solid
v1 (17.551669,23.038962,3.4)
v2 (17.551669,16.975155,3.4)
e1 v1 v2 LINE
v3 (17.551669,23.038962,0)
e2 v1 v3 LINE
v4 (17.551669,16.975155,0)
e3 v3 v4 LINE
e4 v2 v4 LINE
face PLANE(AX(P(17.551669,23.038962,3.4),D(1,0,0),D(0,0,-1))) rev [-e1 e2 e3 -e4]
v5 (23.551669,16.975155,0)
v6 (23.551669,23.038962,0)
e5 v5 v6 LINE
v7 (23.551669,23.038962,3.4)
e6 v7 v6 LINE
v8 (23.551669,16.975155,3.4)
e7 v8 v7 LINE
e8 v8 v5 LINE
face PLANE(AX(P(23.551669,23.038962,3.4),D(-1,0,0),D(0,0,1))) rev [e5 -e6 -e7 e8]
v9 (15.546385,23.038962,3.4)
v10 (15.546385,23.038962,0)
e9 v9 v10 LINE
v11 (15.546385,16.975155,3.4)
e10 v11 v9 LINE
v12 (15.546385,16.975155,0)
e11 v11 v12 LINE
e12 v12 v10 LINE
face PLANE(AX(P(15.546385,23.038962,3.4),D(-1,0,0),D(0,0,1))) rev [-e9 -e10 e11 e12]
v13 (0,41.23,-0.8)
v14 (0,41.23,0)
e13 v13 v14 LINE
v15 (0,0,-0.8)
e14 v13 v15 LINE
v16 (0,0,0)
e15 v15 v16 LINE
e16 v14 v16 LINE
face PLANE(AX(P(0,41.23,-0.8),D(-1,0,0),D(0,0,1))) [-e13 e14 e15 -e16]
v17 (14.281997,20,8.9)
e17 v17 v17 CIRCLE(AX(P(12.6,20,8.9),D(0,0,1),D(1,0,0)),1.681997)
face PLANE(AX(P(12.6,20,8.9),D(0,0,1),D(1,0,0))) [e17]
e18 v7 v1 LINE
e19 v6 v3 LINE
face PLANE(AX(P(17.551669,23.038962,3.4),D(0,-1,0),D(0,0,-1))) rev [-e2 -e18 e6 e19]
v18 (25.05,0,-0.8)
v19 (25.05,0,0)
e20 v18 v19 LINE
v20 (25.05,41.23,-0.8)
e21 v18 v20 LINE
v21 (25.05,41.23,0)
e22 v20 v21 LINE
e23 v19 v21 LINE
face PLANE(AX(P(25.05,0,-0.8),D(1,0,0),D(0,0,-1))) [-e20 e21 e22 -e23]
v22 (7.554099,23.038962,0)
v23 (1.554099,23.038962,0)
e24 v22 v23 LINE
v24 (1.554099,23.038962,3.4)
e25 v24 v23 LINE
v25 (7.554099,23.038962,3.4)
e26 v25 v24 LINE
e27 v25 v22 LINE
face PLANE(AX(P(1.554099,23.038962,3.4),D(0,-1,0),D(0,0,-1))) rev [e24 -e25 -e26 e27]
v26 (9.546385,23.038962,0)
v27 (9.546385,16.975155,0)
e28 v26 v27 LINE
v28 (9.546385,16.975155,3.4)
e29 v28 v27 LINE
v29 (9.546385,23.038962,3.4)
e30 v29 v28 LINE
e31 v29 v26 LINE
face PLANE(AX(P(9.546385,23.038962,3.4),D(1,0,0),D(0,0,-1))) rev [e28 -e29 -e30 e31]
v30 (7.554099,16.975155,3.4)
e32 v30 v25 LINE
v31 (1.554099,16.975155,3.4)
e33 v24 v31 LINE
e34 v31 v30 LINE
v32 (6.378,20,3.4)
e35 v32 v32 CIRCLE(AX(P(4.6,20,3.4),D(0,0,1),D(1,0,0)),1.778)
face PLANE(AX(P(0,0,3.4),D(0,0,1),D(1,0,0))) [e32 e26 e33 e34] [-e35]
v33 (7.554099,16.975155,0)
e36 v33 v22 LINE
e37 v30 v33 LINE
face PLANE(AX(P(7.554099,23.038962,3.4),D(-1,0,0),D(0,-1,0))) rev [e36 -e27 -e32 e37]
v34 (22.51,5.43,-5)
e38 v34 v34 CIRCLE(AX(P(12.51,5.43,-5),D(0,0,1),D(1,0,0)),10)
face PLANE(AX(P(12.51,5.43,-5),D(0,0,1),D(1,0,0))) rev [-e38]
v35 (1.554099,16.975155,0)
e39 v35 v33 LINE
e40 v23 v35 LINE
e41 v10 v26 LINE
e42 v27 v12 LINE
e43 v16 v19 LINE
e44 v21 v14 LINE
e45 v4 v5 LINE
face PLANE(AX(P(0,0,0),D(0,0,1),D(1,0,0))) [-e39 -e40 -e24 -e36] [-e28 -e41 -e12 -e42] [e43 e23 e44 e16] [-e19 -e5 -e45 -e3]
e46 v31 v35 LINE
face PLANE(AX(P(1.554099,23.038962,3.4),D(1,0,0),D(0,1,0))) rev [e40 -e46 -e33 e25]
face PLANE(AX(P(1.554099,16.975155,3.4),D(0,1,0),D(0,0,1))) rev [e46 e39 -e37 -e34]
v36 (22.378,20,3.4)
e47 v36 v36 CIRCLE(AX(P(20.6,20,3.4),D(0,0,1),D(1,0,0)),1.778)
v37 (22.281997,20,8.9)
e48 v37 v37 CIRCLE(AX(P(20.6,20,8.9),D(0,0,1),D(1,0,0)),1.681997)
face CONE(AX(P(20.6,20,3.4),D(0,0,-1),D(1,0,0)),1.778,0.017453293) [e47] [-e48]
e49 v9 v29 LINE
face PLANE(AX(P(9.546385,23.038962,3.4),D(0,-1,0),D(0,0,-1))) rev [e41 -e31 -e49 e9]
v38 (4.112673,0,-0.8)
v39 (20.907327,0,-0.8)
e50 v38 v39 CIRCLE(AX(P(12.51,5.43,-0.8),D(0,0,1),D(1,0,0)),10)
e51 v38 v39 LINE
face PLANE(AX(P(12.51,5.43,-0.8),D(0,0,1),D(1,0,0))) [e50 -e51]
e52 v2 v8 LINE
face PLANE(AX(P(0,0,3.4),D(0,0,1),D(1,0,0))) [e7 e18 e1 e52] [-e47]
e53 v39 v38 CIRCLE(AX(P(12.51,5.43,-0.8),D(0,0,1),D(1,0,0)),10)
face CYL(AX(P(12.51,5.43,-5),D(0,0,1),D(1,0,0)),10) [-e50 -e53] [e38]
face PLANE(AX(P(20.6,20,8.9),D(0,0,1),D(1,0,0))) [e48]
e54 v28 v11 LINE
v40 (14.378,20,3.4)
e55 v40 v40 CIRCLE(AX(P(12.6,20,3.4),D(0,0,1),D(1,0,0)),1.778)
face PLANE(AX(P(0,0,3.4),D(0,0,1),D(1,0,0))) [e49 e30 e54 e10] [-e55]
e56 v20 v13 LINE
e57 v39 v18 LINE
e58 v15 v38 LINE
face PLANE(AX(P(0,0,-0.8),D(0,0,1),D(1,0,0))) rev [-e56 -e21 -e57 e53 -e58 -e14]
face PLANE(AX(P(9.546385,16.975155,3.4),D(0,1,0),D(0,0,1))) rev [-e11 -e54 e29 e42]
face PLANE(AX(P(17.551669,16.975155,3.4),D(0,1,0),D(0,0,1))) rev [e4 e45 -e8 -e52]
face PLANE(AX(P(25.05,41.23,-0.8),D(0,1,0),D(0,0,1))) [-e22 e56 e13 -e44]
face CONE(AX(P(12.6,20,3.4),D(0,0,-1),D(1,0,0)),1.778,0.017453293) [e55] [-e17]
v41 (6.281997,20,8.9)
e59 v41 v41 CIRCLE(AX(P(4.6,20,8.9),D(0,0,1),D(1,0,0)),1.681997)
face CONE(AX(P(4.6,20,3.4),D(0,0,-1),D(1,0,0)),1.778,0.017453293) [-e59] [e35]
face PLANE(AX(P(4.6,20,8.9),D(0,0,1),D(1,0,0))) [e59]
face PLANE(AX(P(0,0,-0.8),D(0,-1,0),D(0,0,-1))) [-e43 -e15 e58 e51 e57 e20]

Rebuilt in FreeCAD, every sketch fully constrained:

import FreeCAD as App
import Part
import Sketcher
from FreeCAD import Vector


def faces_at(feature, points):
    """Names of the faces that lie closest to the given points."""
    faces = feature.Shape.Faces
    near = lambda p: min(range(len(faces)), key=lambda i: faces[i].distToShape(Part.Vertex(*p))[0])
    return sorted({f"Face{near(p) + 1}" for p in points})

doc = App.newDocument("Part")
body = doc.addObject("PartDesign::Body", "Body")

sketch1 = doc.addObject("Sketcher::SketchObject", "Sketch")
body.addObject(sketch1)
sketch1.AttachmentSupport = (doc.XY_Plane, [""])
sketch1.MapMode = "FlatFace"
sketch1.addGeometry([
    Part.LineSegment(Vector(0, 41, 0), Vector(0, 0, 0)),
    Part.LineSegment(Vector(0, 0, 0), Vector(25, 0, 0)),
    Part.LineSegment(Vector(25, 0, 0), Vector(25, 41, 0)),
    Part.LineSegment(Vector(25, 41, 0), Vector(0, 41, 0)),
], False)
sketch1.addConstraint([
    Sketcher.Constraint("Coincident", 0, 2, 1, 1),
    Sketcher.Constraint("Coincident", 1, 2, 2, 1),
    Sketcher.Constraint("Coincident", 2, 2, 3, 1),
    Sketcher.Constraint("Coincident", 3, 2, 0, 1),
    Sketcher.Constraint("Vertical", 0),
    Sketcher.Constraint("Horizontal", 1),
    Sketcher.Constraint("Vertical", 2),
    Sketcher.Constraint("Horizontal", 3),
    Sketcher.Constraint("Coincident", 0, 2, -1, 1),
    Sketcher.Constraint("DistanceX", 1, 1, 1, 2, 25.05),
    Sketcher.Constraint("DistanceY", 0, 2, 0, 1, 41.23),
])
pad1 = doc.addObject("PartDesign::Pad", "Pad")
body.addObject(pad1)
pad1.Profile = sketch1
pad1.Length = 0.8
pad1.Reversed = True

sketch2 = doc.addObject("Sketcher::SketchObject", "Sketch001")
body.addObject(sketch2)
sketch2.AttachmentSupport = (doc.XY_Plane, [""])
sketch2.MapMode = "FlatFace"
sketch2.addGeometry([
    Part.LineSegment(Vector(2, 23, 0), Vector(2, 17, 0)),
    Part.LineSegment(Vector(2, 17, 0), Vector(8, 17, 0)),
    Part.LineSegment(Vector(8, 17, 0), Vector(8, 23, 0)),
    Part.LineSegment(Vector(8, 23, 0), Vector(2, 23, 0)),
    Part.LineSegment(Vector(10, 23, 0), Vector(10, 17, 0)),
    Part.LineSegment(Vector(10, 17, 0), Vector(16, 17, 0)),
    Part.LineSegment(Vector(16, 17, 0), Vector(16, 23, 0)),
    Part.LineSegment(Vector(16, 23, 0), Vector(10, 23, 0)),
    Part.LineSegment(Vector(18, 23, 0), Vector(18, 17, 0)),
    Part.LineSegment(Vector(18, 17, 0), Vector(24, 17, 0)),
    Part.LineSegment(Vector(24, 17, 0), Vector(24, 23, 0)),
    Part.LineSegment(Vector(24, 23, 0), Vector(18, 23, 0)),
], False)
sketch2.addConstraint([
    Sketcher.Constraint("Coincident", 0, 2, 1, 1),
    Sketcher.Constraint("Coincident", 1, 2, 2, 1),
    Sketcher.Constraint("Coincident", 2, 2, 3, 1),
    Sketcher.Constraint("Coincident", 3, 2, 0, 1),
    Sketcher.Constraint("Coincident", 4, 2, 5, 1),
    Sketcher.Constraint("Coincident", 5, 2, 6, 1),
    Sketcher.Constraint("Coincident", 6, 2, 7, 1),
    Sketcher.Constraint("Coincident", 7, 2, 4, 1),
    Sketcher.Constraint("Coincident", 8, 2, 9, 1),
    Sketcher.Constraint("Coincident", 9, 2, 10, 1),
    Sketcher.Constraint("Coincident", 10, 2, 11, 1),
    Sketcher.Constraint("Coincident", 11, 2, 8, 1),
    Sketcher.Constraint("Vertical", 0),
    Sketcher.Constraint("Horizontal", 1),
    Sketcher.Constraint("Vertical", 2),
    Sketcher.Constraint("Horizontal", 3),
    Sketcher.Constraint("Vertical", 4),
    Sketcher.Constraint("Horizontal", 5),
    Sketcher.Constraint("Vertical", 6),
    Sketcher.Constraint("Horizontal", 7),
    Sketcher.Constraint("Vertical", 8),
    Sketcher.Constraint("Horizontal", 9),
    Sketcher.Constraint("Vertical", 10),
    Sketcher.Constraint("Horizontal", 11),
    Sketcher.Constraint("Horizontal", 1, 2, 4, 2),
    Sketcher.Constraint("Horizontal", 3, 2, 6, 2),
    Sketcher.Constraint("Horizontal", 5, 2, 8, 2),
    Sketcher.Constraint("Horizontal", 7, 2, 10, 2),
    Sketcher.Constraint("Equal", 3, 5),
    Sketcher.Constraint("Equal", 7, 9),
    Sketcher.Constraint("DistanceX", 1, 1, 1, 2, 6.0),
    Sketcher.Constraint("DistanceX", -1, 1, 0, 2, 1.554099),
    Sketcher.Constraint("DistanceY", 0, 2, 0, 1, 6.063806),
    Sketcher.Constraint("DistanceY", -1, 1, 2, 2, 23.038962),
    Sketcher.Constraint("DistanceX", -1, 1, 8, 2, 17.551669),
    Sketcher.Constraint("DistanceX", -1, 1, 4, 2, 9.546385),
])
pad2 = doc.addObject("PartDesign::Pad", "Pad001")
body.addObject(pad2)
pad2.Profile = sketch2
pad2.Length = 3.4
body2 = doc.addObject("PartDesign::Body", "Body001")

sketch3 = doc.addObject("Sketcher::SketchObject", "Sketch002")
body2.addObject(sketch3)
sketch3.AttachmentSupport = (doc.getObject("XY_Plane001"), [""])
sketch3.MapMode = "FlatFace"
sketch3.AttachmentOffset = App.Placement(Vector(0, 0, 3.4), App.Rotation())
sketch3.addGeometry(Part.Circle(Vector(4.6, 20, 0), Vector(0, 0, 1), 1.8), False)
sketch3.addConstraint([
    Sketcher.Constraint("Diameter", 0, 3.556),
    Sketcher.Constraint("DistanceY", -1, 1, 0, 3, 20.0),
    Sketcher.Constraint("DistanceX", -1, 1, 0, 3, 4.6),
])
pad3 = doc.addObject("PartDesign::Pad", "Pad002")
body2.addObject(pad3)
pad3.Profile = sketch3
pad3.Length = 5.5
doc.recompute()

datumplane = doc.addObject("PartDesign::Plane", "DatumPlane")
body2.addObject(datumplane)
datumplane.AttachmentSupport = (doc.getObject("XY_Plane001"), [""])
datumplane.MapMode = "FlatFace"
datumplane.AttachmentOffset = App.Placement(Vector(0, 0, 3.4), App.Rotation())
draft = doc.addObject("PartDesign::Draft", "Draft")
body2.addObject(draft)
draft.Base = (pad3, faces_at(pad3, [(2.822, 20, 6.15)]))
draft.NeutralPlane = (datumplane, [""])
draft.Angle = 1
draft.Reversed = False
doc.recompute()

boolean = doc.addObject("PartDesign::Boolean", "Boolean")
body.addObject(boolean)
boolean.Type = "Fuse"
boolean.addObjects([body2])
body3 = doc.addObject("PartDesign::Body", "Body002")

sketch4 = doc.addObject("Sketcher::SketchObject", "Sketch003")
body3.addObject(sketch4)
sketch4.AttachmentSupport = (doc.getObject("XY_Plane002"), [""])
sketch4.MapMode = "FlatFace"
sketch4.AttachmentOffset = App.Placement(Vector(0, 0, 3.4), App.Rotation())
sketch4.addGeometry(Part.Circle(Vector(12.6, 20, 0), Vector(0, 0, 1), 1.8), False)
sketch4.addConstraint([
    Sketcher.Constraint("Diameter", 0, 3.556),
    Sketcher.Constraint("DistanceY", -1, 1, 0, 3, 20.0),
    Sketcher.Constraint("DistanceX", -1, 1, 0, 3, 12.6),
])
pad4 = doc.addObject("PartDesign::Pad", "Pad003")
body3.addObject(pad4)
pad4.Profile = sketch4
pad4.Length = 5.5
doc.recompute()

datumplane2 = doc.addObject("PartDesign::Plane", "DatumPlane001")
body3.addObject(datumplane2)
datumplane2.AttachmentSupport = (doc.getObject("XY_Plane002"), [""])
datumplane2.MapMode = "FlatFace"
datumplane2.AttachmentOffset = App.Placement(Vector(0, 0, 3.4), App.Rotation())
draft2 = doc.addObject("PartDesign::Draft", "Draft001")
body3.addObject(draft2)
draft2.Base = (pad4, faces_at(pad4, [(10.822, 20, 6.15)]))
draft2.NeutralPlane = (datumplane2, [""])
draft2.Angle = 1
draft2.Reversed = False
doc.recompute()

boolean2 = doc.addObject("PartDesign::Boolean", "Boolean001")
body.addObject(boolean2)
boolean2.Type = "Fuse"
boolean2.addObjects([body3])
body4 = doc.addObject("PartDesign::Body", "Body003")

sketch5 = doc.addObject("Sketcher::SketchObject", "Sketch004")
body4.addObject(sketch5)
sketch5.AttachmentSupport = (doc.getObject("XY_Plane003"), [""])
sketch5.MapMode = "FlatFace"
sketch5.AttachmentOffset = App.Placement(Vector(0, 0, 3.4), App.Rotation())
sketch5.addGeometry(Part.Circle(Vector(20.6, 20, 0), Vector(0, 0, 1), 1.8), False)
sketch5.addConstraint([
    Sketcher.Constraint("Diameter", 0, 3.556),
    Sketcher.Constraint("DistanceY", -1, 1, 0, 3, 20.0),
    Sketcher.Constraint("DistanceX", -1, 1, 0, 3, 20.6),
])
pad5 = doc.addObject("PartDesign::Pad", "Pad004")
body4.addObject(pad5)
pad5.Profile = sketch5
pad5.Length = 5.5
doc.recompute()

datumplane3 = doc.addObject("PartDesign::Plane", "DatumPlane002")
body4.addObject(datumplane3)
datumplane3.AttachmentSupport = (doc.getObject("XY_Plane003"), [""])
datumplane3.MapMode = "FlatFace"
datumplane3.AttachmentOffset = App.Placement(Vector(0, 0, 3.4), App.Rotation())
draft3 = doc.addObject("PartDesign::Draft", "Draft002")
body4.addObject(draft3)
draft3.Base = (pad5, faces_at(pad5, [(18.822, 20, 6.15)]))
draft3.NeutralPlane = (datumplane3, [""])
draft3.Angle = 1
draft3.Reversed = False
doc.recompute()

boolean3 = doc.addObject("PartDesign::Boolean", "Boolean002")
body.addObject(boolean3)
boolean3.Type = "Fuse"
boolean3.addObjects([body4])

sketch6 = doc.addObject("Sketcher::SketchObject", "Sketch005")
body.addObject(sketch6)
sketch6.AttachmentSupport = (doc.XY_Plane, [""])
sketch6.MapMode = "FlatFace"
sketch6.AttachmentOffset = App.Placement(Vector(0, 0, -0.8), App.Rotation())
sketch6.addGeometry(Part.Circle(Vector(13, 5, 0), Vector(0, 0, 1), 10), False)
sketch6.addConstraint([
    Sketcher.Constraint("Diameter", 0, 20.0),
    Sketcher.Constraint("DistanceX", -1, 1, 0, 3, 12.51),
    Sketcher.Constraint("DistanceY", -1, 1, 0, 3, 5.43),
])
pad6 = doc.addObject("PartDesign::Pad", "Pad005")
body.addObject(pad6)
pad6.Profile = sketch6
pad6.Length = 4.2
pad6.Reversed = True

doc.recompute()
